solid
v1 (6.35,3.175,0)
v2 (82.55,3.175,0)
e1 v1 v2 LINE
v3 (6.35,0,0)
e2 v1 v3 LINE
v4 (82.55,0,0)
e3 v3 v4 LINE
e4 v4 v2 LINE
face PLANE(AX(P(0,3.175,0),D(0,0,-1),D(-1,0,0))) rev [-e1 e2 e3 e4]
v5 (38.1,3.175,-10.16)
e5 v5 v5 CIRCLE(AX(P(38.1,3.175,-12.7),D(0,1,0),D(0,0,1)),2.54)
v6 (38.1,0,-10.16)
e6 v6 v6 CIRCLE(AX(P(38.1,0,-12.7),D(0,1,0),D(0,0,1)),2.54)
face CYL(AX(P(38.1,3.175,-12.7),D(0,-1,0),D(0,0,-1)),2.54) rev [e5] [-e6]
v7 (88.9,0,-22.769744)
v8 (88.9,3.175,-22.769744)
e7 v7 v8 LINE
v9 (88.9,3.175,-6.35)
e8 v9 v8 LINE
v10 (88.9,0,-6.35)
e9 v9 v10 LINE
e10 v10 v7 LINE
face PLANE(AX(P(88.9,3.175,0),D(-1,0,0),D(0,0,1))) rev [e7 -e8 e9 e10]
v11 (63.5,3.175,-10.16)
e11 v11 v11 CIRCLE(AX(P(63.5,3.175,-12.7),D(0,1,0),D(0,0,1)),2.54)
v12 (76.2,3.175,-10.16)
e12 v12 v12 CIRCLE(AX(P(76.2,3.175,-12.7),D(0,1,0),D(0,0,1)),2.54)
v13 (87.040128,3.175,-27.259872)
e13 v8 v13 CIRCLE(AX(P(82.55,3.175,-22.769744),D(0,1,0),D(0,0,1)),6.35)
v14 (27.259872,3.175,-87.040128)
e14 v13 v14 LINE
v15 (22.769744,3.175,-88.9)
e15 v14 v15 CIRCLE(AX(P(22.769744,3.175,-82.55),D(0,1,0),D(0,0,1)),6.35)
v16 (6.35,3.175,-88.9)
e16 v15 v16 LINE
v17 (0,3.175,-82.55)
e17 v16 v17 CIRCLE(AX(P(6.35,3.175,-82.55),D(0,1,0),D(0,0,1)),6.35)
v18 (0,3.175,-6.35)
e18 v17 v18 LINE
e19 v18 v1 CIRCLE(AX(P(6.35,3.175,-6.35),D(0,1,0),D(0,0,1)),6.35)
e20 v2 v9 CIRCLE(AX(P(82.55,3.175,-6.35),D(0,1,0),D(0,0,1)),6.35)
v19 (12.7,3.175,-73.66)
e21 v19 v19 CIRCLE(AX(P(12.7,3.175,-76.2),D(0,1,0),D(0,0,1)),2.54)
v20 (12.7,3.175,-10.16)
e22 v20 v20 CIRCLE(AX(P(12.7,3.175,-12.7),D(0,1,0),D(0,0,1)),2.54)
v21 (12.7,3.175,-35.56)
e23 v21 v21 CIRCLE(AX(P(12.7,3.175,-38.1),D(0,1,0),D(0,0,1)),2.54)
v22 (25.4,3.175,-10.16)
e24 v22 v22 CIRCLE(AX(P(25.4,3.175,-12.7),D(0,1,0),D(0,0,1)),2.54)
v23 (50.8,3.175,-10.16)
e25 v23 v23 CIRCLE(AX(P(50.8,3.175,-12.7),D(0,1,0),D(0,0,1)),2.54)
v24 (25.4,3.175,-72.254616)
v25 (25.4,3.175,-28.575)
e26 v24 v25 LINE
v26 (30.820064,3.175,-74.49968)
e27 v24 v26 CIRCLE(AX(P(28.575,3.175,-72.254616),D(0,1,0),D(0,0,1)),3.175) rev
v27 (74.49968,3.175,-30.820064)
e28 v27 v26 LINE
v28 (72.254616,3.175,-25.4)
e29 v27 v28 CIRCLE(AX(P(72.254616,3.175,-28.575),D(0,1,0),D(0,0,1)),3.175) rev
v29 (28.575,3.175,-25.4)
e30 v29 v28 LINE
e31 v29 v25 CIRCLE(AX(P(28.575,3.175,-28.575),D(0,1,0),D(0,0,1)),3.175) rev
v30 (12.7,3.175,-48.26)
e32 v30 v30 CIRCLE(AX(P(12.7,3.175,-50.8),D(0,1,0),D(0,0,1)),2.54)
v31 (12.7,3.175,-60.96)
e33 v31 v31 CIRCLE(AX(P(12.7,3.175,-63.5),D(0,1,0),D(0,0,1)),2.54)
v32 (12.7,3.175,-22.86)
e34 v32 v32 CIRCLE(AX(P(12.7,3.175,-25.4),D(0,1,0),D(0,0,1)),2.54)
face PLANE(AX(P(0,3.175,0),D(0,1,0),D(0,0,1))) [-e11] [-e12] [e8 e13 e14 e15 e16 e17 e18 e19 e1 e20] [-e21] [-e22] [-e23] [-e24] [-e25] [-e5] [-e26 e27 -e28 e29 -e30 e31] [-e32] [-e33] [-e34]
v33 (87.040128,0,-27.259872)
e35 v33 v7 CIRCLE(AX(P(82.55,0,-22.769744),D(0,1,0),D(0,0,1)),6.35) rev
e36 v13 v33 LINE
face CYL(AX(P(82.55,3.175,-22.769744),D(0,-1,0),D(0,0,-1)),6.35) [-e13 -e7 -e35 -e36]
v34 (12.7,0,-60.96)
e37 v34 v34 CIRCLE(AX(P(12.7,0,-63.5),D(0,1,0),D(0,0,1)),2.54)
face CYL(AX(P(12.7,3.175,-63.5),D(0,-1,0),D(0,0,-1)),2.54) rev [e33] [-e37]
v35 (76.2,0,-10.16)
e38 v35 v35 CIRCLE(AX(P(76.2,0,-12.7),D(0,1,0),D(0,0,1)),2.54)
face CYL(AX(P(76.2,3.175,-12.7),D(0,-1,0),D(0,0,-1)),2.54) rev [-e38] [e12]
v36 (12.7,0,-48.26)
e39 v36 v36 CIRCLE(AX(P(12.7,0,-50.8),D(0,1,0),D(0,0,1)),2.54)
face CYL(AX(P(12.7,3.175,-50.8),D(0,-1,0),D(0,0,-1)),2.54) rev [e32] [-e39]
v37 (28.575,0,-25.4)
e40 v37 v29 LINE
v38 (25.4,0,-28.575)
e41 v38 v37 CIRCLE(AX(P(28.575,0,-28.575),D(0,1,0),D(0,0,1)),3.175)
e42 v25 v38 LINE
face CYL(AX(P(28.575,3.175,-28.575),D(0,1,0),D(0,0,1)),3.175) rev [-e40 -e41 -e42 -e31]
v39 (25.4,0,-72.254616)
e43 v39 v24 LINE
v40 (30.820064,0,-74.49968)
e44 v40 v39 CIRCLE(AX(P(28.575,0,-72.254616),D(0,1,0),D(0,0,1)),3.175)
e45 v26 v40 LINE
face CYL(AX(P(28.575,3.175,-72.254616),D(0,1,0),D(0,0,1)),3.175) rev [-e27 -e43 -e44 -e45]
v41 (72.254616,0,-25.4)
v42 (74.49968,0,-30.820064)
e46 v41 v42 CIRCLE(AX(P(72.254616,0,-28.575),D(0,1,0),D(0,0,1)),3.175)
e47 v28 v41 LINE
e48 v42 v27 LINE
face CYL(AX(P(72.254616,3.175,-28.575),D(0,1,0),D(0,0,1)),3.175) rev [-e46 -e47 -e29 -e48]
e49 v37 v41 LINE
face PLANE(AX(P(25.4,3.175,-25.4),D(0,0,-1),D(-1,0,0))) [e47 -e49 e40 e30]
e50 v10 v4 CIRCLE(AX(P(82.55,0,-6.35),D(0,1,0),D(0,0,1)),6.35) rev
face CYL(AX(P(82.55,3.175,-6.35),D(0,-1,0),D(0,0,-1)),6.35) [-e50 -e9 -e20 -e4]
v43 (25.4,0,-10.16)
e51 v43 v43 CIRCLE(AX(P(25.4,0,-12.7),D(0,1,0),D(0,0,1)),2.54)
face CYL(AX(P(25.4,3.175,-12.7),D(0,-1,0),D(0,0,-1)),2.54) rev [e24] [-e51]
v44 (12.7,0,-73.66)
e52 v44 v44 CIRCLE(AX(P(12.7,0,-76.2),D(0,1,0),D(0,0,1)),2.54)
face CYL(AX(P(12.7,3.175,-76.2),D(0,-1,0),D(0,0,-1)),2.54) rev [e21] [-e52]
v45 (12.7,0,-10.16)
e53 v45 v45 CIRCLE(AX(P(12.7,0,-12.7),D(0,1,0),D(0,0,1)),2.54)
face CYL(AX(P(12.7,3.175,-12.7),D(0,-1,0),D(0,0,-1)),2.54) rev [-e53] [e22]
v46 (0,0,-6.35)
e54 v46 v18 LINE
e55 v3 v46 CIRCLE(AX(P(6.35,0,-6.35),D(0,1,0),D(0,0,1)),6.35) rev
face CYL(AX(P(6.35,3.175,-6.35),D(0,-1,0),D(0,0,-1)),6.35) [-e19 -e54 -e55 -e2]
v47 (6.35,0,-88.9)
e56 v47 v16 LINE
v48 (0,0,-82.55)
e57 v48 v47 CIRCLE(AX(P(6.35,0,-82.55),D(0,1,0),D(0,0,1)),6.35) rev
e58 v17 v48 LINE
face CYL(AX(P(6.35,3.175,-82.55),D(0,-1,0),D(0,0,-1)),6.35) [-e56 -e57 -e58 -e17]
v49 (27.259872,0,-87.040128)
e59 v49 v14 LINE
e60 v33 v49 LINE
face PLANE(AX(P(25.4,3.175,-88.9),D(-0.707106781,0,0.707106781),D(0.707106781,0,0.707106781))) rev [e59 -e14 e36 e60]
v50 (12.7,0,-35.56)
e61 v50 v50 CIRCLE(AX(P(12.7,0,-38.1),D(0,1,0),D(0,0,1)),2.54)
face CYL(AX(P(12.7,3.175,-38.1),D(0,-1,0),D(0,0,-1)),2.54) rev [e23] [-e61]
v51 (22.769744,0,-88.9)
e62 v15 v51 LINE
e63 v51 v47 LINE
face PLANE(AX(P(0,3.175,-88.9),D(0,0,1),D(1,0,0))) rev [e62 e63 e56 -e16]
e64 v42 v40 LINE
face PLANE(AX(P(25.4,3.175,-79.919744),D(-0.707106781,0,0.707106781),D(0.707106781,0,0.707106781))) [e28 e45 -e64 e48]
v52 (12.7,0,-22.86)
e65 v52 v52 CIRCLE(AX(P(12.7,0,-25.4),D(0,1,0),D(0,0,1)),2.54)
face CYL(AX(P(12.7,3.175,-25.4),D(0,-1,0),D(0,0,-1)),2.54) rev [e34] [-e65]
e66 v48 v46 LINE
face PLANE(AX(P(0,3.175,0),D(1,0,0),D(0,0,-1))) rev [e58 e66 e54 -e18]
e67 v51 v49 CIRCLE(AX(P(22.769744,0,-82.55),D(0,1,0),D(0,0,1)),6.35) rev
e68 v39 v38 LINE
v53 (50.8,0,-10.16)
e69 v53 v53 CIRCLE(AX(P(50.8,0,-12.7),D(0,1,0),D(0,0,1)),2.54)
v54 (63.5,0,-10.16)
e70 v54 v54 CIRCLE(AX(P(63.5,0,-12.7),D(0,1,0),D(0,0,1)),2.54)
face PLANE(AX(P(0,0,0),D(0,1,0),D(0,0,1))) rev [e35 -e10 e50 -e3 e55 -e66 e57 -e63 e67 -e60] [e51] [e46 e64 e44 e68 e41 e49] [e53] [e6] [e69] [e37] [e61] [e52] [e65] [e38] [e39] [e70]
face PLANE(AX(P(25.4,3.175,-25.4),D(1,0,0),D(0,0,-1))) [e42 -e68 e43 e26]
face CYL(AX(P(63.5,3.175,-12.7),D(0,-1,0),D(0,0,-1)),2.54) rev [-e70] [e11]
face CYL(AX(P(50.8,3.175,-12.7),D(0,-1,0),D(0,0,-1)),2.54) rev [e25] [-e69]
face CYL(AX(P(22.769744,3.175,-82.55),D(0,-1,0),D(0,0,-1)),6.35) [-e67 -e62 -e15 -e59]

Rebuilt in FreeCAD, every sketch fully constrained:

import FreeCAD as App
import Part
import Sketcher

V = App.Vector
Q = App.Units.Quantity


def edges_at(feature, points):
    """Names of the edges that pass closest to the given points."""
    edges = feature.Shape.Edges
    near = lambda p: min(range(len(edges)), key=lambda i: edges[i].distToShape(Part.Vertex(*p))[0])
    return sorted({f"Edge{near(p) + 1}" for p in points})

doc = App.newDocument("Part")
body = doc.addObject("PartDesign::Body", "Body")

sketch1 = body.newObject("Sketcher::SketchObject", "Sketch")
sketch1.AttachmentSupport = (doc.getObject("XZ_Plane"), [""])
sketch1.MapMode = "FlatFace"
sketch1.addGeometry([
    Part.LineSegment(V(0, -88.9, 0), V(0, 0, 0)),
    Part.LineSegment(V(0, 0, 0), V(88.9, 0, 0)),
    Part.LineSegment(V(88.9, 0, 0), V(88.9, -25.4, 0)),
    Part.LineSegment(V(88.9, -25.4, 0), V(25.4, -88.9, 0)),
    Part.LineSegment(V(25.4, -88.9, 0), V(0, -88.9, 0)),
    Part.Circle(V(76.2, -12.7, 0), V(0, 0, 1), 2.54),
    Part.Circle(V(63.5, -12.7, 0), V(0, 0, 1), 2.54),
    Part.Circle(V(50.8, -12.7, 0), V(0, 0, 1), 2.54),
    Part.Circle(V(38.1, -12.7, 0), V(0, 0, 1), 2.54),
    Part.Circle(V(25.4, -12.7, 0), V(0, 0, 1), 2.54),
    Part.Circle(V(12.7, -12.7, 0), V(0, 0, 1), 2.54),
    Part.Circle(V(12.7, -25.4, 0), V(0, 0, 1), 2.54),
    Part.Circle(V(12.7, -38.1, 0), V(0, 0, 1), 2.54),
    Part.LineSegment(V(25.4, -25.4, 0), V(25.4, -79.919744, 0)),
    Part.LineSegment(V(25.4, -79.919744, 0), V(79.919744, -25.4, 0)),
    Part.LineSegment(V(79.919744, -25.4, 0), V(25.4, -25.4, 0)),
    Part.Circle(V(12.7, -50.8, 0), V(0, 0, 1), 2.54),
    Part.Circle(V(12.7, -63.5, 0), V(0, 0, 1), 2.54),
    Part.Circle(V(12.7, -76.2, 0), V(0, 0, 1), 2.54),
], False)
sketch1.addConstraint([
    Sketcher.Constraint("Coincident", 0, 2, 1, 1),
    Sketcher.Constraint("Coincident", 1, 2, 2, 1),
    Sketcher.Constraint("Coincident", 2, 2, 3, 1),
    Sketcher.Constraint("Coincident", 3, 2, 4, 1),
    Sketcher.Constraint("Coincident", 4, 2, 0, 1),
    Sketcher.Constraint("Coincident", 13, 2, 14, 1),
    Sketcher.Constraint("Coincident", 14, 2, 15, 1),
    Sketcher.Constraint("Coincident", 15, 2, 13, 1),
    Sketcher.Constraint("Vertical", 0),
    Sketcher.Constraint("Horizontal", 1),
    Sketcher.Constraint("Vertical", 2),
    Sketcher.Constraint("Horizontal", 4),
    Sketcher.Constraint("Vertical", 13),
    Sketcher.Constraint("Horizontal", 15),
    Sketcher.Constraint("Coincident", 0, 2, -1, 1),
    Sketcher.Constraint("Equal", 5, 6),
    Sketcher.Constraint("Equal", 6, 7),
    Sketcher.Constraint("Equal", 7, 8),
    Sketcher.Constraint("Equal", 8, 9),
    Sketcher.Constraint("Equal", 9, 10),
    Sketcher.Constraint("Equal", 10, 11),
    Sketcher.Constraint("Equal", 11, 12),
    Sketcher.Constraint("Equal", 12, 16),
    Sketcher.Constraint("Equal", 16, 17),
    Sketcher.Constraint("Equal", 17, 18),
    Sketcher.Constraint("Parallel", 3, 14),
    Sketcher.Constraint("Horizontal", 5, 3, 6, 3),
    Sketcher.Constraint("Horizontal", 6, 3, 7, 3),
    Sketcher.Constraint("Horizontal", 7, 3, 8, 3),
    Sketcher.Constraint("Horizontal", 8, 3, 9, 3),
    Sketcher.Constraint("Horizontal", 9, 3, 10, 3),
    Sketcher.Constraint("Horizontal", 11, 3, 2, 2),
    Sketcher.Constraint("Horizontal", 2, 2, 14, 2),
    Sketcher.Constraint("Vertical", 10, 3, 11, 3),
    Sketcher.Constraint("Vertical", 11, 3, 12, 3),
    Sketcher.Constraint("Vertical", 12, 3, 16, 3),
    Sketcher.Constraint("Vertical", 16, 3, 17, 3),
    Sketcher.Constraint("Vertical", 17, 3, 18, 3),
    Sketcher.Constraint("Vertical", 9, 3, 3, 2),
    Sketcher.Constraint("Vertical", 3, 2, 13, 2),
    Sketcher.Constraint("Equal", 1, 0),
    Sketcher.Constraint("Equal", 4, 2),
    Sketcher.Constraint("Diameter", 5, Q("0.2 in")),
    Sketcher.Constraint("DistanceX", 4, 2, 4, 1, Q("1 in")),
    Sketcher.Constraint("DistanceX", 1, 1, 1, 2, Q("3.5 in")),
    Sketcher.Constraint("DistanceX", -1, 1, 5, 3, Q("3 in")),
    Sketcher.Constraint("DistanceX", -1, 1, 7, 3, Q("2 in")),
    Sketcher.Constraint("DistanceY", 16, 3, -1, 1, Q("2 in")),
    Sketcher.Constraint("DistanceY", 18, 3, -1, 1, Q("3 in")),
    Sketcher.Constraint("DistanceX", 8, 3, 6, 3, Q("1 in")),
    Sketcher.Constraint("DistanceX", 10, 3, 8, 3, Q("1 in")),
    Sketcher.Constraint("DistanceY", 12, 3, 10, 3, Q("1 in")),
    Sketcher.Constraint("DistanceY", 17, 3, 12, 3, Q("1 in")),
    Sketcher.Constraint("DistanceX", 6, 3, 1, 2, Q("1 in")),
    Sketcher.Constraint("DistanceY", 3, 2, 17, 3, Q("1 in")),
    Sketcher.Constraint("Distance", 14, Q("77.102561 mm")),
])
pad1 = body.newObject("PartDesign::Pad", "Pad")
pad1.Profile = sketch1
pad1.Length = Q("0.125 in")
pad1.Reversed = True
doc.recompute()

fillet = body.newObject("PartDesign::Fillet", "Fillet")
fillet.Base = (pad1, edges_at(pad1, [
    (0, 1.587, 0),
    (0, 1.587, -88.9),
    (25.4, 1.587, -88.9),
    (88.9, 1.587, -25.4),
    (88.9, 1.587, 0),
]))
fillet.Radius = Q("0.25 in")
doc.recompute()

fillet2 = body.newObject("PartDesign::Fillet", "Fillet001")
fillet2.Base = (fillet, edges_at(fillet, [(25.4, 1.587, -25.4), (79.92, 1.587, -25.4), (25.4, 1.587, -79.92)]))
fillet2.Radius = Q("0.125 in")

doc.recompute()
